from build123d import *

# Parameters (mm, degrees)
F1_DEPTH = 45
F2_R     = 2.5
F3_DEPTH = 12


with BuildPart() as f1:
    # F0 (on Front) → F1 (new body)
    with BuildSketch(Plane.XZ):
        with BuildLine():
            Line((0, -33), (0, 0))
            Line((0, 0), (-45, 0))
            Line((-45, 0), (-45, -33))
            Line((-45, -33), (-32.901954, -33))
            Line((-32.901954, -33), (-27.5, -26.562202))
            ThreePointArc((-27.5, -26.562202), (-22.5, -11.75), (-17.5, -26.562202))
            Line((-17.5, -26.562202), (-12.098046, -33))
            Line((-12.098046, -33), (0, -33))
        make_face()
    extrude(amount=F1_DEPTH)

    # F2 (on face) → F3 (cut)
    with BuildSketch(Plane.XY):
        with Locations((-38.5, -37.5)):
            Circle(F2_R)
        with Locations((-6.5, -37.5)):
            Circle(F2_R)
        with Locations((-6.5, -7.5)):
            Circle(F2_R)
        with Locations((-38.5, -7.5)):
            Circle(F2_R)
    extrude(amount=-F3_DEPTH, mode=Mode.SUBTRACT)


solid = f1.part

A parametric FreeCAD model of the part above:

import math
import FreeCAD as App
import Part
import Sketcher
Q = App.Units.Quantity

doc = App.newDocument("Part")
body = doc.addObject("PartDesign::Body", "Body")

sketch1 = body.newObject("Sketcher::SketchObject", "Sketch")
sketch1.AttachmentSupport = (doc.getObject("XZ_Plane"), [""])
sketch1.MapMode = "FlatFace"
sketch1.addGeometry([
    Part.LineSegment(App.Vector(0, -33, 0), App.Vector(0, 0, 0)),
    Part.LineSegment(App.Vector(0, 0, 0), App.Vector(-45, 0, 0)),
    Part.LineSegment(App.Vector(-45, 0, 0), App.Vector(-45, -33, 0)),
    Part.LineSegment(App.Vector(-45, -33, 0), App.Vector(-33, -33, 0)),
    Part.LineSegment(App.Vector(-33, -33, 0), App.Vector(-28, -27, 0)),
    Part.ArcOfCircle(Part.Circle(App.Vector(-22, -20, 0), App.Vector(0, 0, 1), 8), math.radians(-53), math.radians(233)),
    Part.LineSegment(App.Vector(-18, -27, 0), App.Vector(-12, -33, 0)),
    Part.LineSegment(App.Vector(-12, -33, 0), App.Vector(0, -33, 0)),
], False)
sketch1.addConstraint([
    Sketcher.Constraint("Coincident", 0, 2, 1, 1),
    Sketcher.Constraint("Coincident", 1, 2, 2, 1),
    Sketcher.Constraint("Coincident", 2, 2, 3, 1),
    Sketcher.Constraint("Coincident", 3, 2, 4, 1),
    Sketcher.Constraint("Coincident", 4, 2, 5, 2),
    Sketcher.Constraint("Coincident", 5, 1, 6, 1),
    Sketcher.Constraint("Coincident", 6, 2, 7, 1),
    Sketcher.Constraint("Coincident", 7, 2, 0, 1),
    Sketcher.Constraint("Vertical", 0),
    Sketcher.Constraint("Horizontal", 1),
    Sketcher.Constraint("Vertical", 2),
    Sketcher.Constraint("Horizontal", 3),
    Sketcher.Constraint("Horizontal", 7),
    Sketcher.Constraint("Coincident", 0, 2, -1, 1),
    Sketcher.Constraint("Horizontal", 4, 2, 5, 1),
    Sketcher.Constraint("Horizontal", 3, 2, 6, 2),
    Sketcher.Constraint("Equal", 3, 7),
    Sketcher.Constraint("Equal", 4, 6),
    Sketcher.Constraint("DistanceX", 1, 2, 1, 1, Q("45 mm")),
    Sketcher.Constraint("DistanceY", 0, 1, 0, 2, Q("33 mm")),
    Sketcher.Constraint("Angle", 4, Q("50 deg")),
    Sketcher.Constraint("Radius", 5, Q("8.25 mm")),
    Sketcher.Constraint("DistanceY", 5, 3, -1, 1, Q("20 mm")),
    Sketcher.Constraint("DistanceX", 4, 2, 5, 3, Q("5 mm")),
])
pad1 = body.newObject("PartDesign::Pad", "Pad")
pad1.Profile = sketch1
pad1.Length = 45

sketch2 = body.newObject("Sketcher::SketchObject", "Sketch001")
sketch2.AttachmentSupport = (doc.getObject("XY_Plane"), [""])
sketch2.MapMode = "FlatFace"
sketch2.addGeometry([
    Part.Circle(App.Vector(-38.5, -37.5, 0), App.Vector(0, 0, 1), 2.5),
    Part.Circle(App.Vector(-6.5, -37.5, 0), App.Vector(0, 0, 1), 2.5),
    Part.Circle(App.Vector(-6.5, -7.5, 0), App.Vector(0, 0, 1), 2.5),
    Part.Circle(App.Vector(-38.5, -7.5, 0), App.Vector(0, 0, 1), 2.5),
], False)
sketch2.addConstraint([
    Sketcher.Constraint("Equal", 0, 1),
    Sketcher.Constraint("Equal", 1, 2),
    Sketcher.Constraint("Equal", 2, 3),
    Sketcher.Constraint("Horizontal", 0, 3, 1, 3),
    Sketcher.Constraint("Horizontal", 2, 3, 3, 3),
    Sketcher.Constraint("Vertical", 1, 3, 2, 3),
    Sketcher.Constraint("Vertical", 0, 3, 3, 3),
    Sketcher.Constraint("Diameter", 0, Q("5 mm")),
    Sketcher.Constraint("DistanceX", 0, 3, 1, 3, Q("32 mm")),
    Sketcher.Constraint("DistanceY", 1, 3, 2, 3, Q("30 mm")),
    Sketcher.Constraint("DistanceX", 0, 3, -1, 1, Q("38.5 mm")),
    Sketcher.Constraint("DistanceY", 0, 3, -1, 1, Q("37.5 mm")),
])
pocket1 = body.newObject("PartDesign::Pocket", "Pocket")
pocket1.Profile = sketch2
pocket1.Length = 12

doc.recompute()
